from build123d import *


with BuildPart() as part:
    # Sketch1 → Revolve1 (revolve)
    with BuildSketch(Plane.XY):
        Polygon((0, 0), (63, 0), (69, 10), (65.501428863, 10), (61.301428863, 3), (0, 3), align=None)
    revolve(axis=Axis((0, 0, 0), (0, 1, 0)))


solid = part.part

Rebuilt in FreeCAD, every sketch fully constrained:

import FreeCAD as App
import Part
import Sketcher

doc = App.newDocument("Part")
params = doc.addObject("Spreadsheet::Sheet", "Params")
for row, (alias, value) in enumerate([
    ("sketch1_width", "63 mm"),
    ("sketch1_height", "3 mm"),
    ("revolution_angle", "360 deg"),
], start=1):
    params.set(f"A{row}", alias)
    params.set(f"B{row}", "=" + value)
    params.setAlias(f"B{row}", alias)

body = doc.addObject("PartDesign::Body", "Body")

# Sketch on XY plane
sketch1 = doc.addObject("Sketcher::SketchObject", "Sketch")
body.addObject(sketch1)
sketch1.AttachmentSupport = (doc.XY_Plane, [""])
sketch1.MapMode = "FlatFace"
sketch1.addGeometry(Part.LineSegment(App.Vector(0, 0, 0), App.Vector(63, 0, 0)), False)
sketch1.addGeometry(Part.LineSegment(App.Vector(63, 0, 0), App.Vector(69, 10, 0)), False)
sketch1.addGeometry(Part.LineSegment(App.Vector(69, 10, 0), App.Vector(65.5, 10, 0)), False)
sketch1.addGeometry(Part.LineSegment(App.Vector(65.5, 10, 0), App.Vector(61.3, 3, 0)), False)
sketch1.addGeometry(Part.LineSegment(App.Vector(61.3, 3, 0), App.Vector(0, 3, 0)), False)
sketch1.addGeometry(Part.LineSegment(App.Vector(0, 3, 0), App.Vector(0, 0, 0)), False)
sketch1.addConstraint(Sketcher.Constraint("Coincident", 0, 2, 1, 1))
sketch1.addConstraint(Sketcher.Constraint("Coincident", 1, 2, 2, 1))
sketch1.addConstraint(Sketcher.Constraint("Coincident", 2, 2, 3, 1))
sketch1.addConstraint(Sketcher.Constraint("Coincident", 3, 2, 4, 1))
sketch1.addConstraint(Sketcher.Constraint("Coincident", 4, 2, 5, 1))
sketch1.addConstraint(Sketcher.Constraint("Coincident", 5, 2, 0, 1))
sketch1.addConstraint(Sketcher.Constraint("Horizontal", 0))
sketch1.addConstraint(Sketcher.Constraint("Horizontal", 2))
sketch1.addConstraint(Sketcher.Constraint("Horizontal", 4))
sketch1.addConstraint(Sketcher.Constraint("Vertical", 5))
sketch1.addConstraint(Sketcher.Constraint("Coincident", 5, 2, -1, 1))
sketch1.addConstraint(Sketcher.Constraint("Parallel", 1, 3))
sketch1.addConstraint(Sketcher.Constraint("DistanceX", 0, 1, 0, 2, 63.0))
sketch1.addConstraint(Sketcher.Constraint("DistanceY", 5, 2, 5, 1, 3.0))
sketch1.addConstraint(Sketcher.Constraint("DistanceX", -1, 1, 1, 2, 69.0))
sketch1.addConstraint(Sketcher.Constraint("DistanceY", -1, 1, 1, 2, 10.0))
sketch1.addConstraint(Sketcher.Constraint("DistanceX", 2, 2, 2, 1, 3.498571))
sketch1.setExpression("Constraints[12]", "Params.sketch1_width")
sketch1.setExpression("Constraints[13]", "Params.sketch1_height")
revolution = doc.addObject("PartDesign::Revolution", "Revolution")
body.addObject(revolution)
revolution.Profile = sketch1
revolution.ReferenceAxis = (sketch1, ["V_Axis"])
revolution.setExpression("Angle", "Params.revolution_angle")

doc.recompute()
